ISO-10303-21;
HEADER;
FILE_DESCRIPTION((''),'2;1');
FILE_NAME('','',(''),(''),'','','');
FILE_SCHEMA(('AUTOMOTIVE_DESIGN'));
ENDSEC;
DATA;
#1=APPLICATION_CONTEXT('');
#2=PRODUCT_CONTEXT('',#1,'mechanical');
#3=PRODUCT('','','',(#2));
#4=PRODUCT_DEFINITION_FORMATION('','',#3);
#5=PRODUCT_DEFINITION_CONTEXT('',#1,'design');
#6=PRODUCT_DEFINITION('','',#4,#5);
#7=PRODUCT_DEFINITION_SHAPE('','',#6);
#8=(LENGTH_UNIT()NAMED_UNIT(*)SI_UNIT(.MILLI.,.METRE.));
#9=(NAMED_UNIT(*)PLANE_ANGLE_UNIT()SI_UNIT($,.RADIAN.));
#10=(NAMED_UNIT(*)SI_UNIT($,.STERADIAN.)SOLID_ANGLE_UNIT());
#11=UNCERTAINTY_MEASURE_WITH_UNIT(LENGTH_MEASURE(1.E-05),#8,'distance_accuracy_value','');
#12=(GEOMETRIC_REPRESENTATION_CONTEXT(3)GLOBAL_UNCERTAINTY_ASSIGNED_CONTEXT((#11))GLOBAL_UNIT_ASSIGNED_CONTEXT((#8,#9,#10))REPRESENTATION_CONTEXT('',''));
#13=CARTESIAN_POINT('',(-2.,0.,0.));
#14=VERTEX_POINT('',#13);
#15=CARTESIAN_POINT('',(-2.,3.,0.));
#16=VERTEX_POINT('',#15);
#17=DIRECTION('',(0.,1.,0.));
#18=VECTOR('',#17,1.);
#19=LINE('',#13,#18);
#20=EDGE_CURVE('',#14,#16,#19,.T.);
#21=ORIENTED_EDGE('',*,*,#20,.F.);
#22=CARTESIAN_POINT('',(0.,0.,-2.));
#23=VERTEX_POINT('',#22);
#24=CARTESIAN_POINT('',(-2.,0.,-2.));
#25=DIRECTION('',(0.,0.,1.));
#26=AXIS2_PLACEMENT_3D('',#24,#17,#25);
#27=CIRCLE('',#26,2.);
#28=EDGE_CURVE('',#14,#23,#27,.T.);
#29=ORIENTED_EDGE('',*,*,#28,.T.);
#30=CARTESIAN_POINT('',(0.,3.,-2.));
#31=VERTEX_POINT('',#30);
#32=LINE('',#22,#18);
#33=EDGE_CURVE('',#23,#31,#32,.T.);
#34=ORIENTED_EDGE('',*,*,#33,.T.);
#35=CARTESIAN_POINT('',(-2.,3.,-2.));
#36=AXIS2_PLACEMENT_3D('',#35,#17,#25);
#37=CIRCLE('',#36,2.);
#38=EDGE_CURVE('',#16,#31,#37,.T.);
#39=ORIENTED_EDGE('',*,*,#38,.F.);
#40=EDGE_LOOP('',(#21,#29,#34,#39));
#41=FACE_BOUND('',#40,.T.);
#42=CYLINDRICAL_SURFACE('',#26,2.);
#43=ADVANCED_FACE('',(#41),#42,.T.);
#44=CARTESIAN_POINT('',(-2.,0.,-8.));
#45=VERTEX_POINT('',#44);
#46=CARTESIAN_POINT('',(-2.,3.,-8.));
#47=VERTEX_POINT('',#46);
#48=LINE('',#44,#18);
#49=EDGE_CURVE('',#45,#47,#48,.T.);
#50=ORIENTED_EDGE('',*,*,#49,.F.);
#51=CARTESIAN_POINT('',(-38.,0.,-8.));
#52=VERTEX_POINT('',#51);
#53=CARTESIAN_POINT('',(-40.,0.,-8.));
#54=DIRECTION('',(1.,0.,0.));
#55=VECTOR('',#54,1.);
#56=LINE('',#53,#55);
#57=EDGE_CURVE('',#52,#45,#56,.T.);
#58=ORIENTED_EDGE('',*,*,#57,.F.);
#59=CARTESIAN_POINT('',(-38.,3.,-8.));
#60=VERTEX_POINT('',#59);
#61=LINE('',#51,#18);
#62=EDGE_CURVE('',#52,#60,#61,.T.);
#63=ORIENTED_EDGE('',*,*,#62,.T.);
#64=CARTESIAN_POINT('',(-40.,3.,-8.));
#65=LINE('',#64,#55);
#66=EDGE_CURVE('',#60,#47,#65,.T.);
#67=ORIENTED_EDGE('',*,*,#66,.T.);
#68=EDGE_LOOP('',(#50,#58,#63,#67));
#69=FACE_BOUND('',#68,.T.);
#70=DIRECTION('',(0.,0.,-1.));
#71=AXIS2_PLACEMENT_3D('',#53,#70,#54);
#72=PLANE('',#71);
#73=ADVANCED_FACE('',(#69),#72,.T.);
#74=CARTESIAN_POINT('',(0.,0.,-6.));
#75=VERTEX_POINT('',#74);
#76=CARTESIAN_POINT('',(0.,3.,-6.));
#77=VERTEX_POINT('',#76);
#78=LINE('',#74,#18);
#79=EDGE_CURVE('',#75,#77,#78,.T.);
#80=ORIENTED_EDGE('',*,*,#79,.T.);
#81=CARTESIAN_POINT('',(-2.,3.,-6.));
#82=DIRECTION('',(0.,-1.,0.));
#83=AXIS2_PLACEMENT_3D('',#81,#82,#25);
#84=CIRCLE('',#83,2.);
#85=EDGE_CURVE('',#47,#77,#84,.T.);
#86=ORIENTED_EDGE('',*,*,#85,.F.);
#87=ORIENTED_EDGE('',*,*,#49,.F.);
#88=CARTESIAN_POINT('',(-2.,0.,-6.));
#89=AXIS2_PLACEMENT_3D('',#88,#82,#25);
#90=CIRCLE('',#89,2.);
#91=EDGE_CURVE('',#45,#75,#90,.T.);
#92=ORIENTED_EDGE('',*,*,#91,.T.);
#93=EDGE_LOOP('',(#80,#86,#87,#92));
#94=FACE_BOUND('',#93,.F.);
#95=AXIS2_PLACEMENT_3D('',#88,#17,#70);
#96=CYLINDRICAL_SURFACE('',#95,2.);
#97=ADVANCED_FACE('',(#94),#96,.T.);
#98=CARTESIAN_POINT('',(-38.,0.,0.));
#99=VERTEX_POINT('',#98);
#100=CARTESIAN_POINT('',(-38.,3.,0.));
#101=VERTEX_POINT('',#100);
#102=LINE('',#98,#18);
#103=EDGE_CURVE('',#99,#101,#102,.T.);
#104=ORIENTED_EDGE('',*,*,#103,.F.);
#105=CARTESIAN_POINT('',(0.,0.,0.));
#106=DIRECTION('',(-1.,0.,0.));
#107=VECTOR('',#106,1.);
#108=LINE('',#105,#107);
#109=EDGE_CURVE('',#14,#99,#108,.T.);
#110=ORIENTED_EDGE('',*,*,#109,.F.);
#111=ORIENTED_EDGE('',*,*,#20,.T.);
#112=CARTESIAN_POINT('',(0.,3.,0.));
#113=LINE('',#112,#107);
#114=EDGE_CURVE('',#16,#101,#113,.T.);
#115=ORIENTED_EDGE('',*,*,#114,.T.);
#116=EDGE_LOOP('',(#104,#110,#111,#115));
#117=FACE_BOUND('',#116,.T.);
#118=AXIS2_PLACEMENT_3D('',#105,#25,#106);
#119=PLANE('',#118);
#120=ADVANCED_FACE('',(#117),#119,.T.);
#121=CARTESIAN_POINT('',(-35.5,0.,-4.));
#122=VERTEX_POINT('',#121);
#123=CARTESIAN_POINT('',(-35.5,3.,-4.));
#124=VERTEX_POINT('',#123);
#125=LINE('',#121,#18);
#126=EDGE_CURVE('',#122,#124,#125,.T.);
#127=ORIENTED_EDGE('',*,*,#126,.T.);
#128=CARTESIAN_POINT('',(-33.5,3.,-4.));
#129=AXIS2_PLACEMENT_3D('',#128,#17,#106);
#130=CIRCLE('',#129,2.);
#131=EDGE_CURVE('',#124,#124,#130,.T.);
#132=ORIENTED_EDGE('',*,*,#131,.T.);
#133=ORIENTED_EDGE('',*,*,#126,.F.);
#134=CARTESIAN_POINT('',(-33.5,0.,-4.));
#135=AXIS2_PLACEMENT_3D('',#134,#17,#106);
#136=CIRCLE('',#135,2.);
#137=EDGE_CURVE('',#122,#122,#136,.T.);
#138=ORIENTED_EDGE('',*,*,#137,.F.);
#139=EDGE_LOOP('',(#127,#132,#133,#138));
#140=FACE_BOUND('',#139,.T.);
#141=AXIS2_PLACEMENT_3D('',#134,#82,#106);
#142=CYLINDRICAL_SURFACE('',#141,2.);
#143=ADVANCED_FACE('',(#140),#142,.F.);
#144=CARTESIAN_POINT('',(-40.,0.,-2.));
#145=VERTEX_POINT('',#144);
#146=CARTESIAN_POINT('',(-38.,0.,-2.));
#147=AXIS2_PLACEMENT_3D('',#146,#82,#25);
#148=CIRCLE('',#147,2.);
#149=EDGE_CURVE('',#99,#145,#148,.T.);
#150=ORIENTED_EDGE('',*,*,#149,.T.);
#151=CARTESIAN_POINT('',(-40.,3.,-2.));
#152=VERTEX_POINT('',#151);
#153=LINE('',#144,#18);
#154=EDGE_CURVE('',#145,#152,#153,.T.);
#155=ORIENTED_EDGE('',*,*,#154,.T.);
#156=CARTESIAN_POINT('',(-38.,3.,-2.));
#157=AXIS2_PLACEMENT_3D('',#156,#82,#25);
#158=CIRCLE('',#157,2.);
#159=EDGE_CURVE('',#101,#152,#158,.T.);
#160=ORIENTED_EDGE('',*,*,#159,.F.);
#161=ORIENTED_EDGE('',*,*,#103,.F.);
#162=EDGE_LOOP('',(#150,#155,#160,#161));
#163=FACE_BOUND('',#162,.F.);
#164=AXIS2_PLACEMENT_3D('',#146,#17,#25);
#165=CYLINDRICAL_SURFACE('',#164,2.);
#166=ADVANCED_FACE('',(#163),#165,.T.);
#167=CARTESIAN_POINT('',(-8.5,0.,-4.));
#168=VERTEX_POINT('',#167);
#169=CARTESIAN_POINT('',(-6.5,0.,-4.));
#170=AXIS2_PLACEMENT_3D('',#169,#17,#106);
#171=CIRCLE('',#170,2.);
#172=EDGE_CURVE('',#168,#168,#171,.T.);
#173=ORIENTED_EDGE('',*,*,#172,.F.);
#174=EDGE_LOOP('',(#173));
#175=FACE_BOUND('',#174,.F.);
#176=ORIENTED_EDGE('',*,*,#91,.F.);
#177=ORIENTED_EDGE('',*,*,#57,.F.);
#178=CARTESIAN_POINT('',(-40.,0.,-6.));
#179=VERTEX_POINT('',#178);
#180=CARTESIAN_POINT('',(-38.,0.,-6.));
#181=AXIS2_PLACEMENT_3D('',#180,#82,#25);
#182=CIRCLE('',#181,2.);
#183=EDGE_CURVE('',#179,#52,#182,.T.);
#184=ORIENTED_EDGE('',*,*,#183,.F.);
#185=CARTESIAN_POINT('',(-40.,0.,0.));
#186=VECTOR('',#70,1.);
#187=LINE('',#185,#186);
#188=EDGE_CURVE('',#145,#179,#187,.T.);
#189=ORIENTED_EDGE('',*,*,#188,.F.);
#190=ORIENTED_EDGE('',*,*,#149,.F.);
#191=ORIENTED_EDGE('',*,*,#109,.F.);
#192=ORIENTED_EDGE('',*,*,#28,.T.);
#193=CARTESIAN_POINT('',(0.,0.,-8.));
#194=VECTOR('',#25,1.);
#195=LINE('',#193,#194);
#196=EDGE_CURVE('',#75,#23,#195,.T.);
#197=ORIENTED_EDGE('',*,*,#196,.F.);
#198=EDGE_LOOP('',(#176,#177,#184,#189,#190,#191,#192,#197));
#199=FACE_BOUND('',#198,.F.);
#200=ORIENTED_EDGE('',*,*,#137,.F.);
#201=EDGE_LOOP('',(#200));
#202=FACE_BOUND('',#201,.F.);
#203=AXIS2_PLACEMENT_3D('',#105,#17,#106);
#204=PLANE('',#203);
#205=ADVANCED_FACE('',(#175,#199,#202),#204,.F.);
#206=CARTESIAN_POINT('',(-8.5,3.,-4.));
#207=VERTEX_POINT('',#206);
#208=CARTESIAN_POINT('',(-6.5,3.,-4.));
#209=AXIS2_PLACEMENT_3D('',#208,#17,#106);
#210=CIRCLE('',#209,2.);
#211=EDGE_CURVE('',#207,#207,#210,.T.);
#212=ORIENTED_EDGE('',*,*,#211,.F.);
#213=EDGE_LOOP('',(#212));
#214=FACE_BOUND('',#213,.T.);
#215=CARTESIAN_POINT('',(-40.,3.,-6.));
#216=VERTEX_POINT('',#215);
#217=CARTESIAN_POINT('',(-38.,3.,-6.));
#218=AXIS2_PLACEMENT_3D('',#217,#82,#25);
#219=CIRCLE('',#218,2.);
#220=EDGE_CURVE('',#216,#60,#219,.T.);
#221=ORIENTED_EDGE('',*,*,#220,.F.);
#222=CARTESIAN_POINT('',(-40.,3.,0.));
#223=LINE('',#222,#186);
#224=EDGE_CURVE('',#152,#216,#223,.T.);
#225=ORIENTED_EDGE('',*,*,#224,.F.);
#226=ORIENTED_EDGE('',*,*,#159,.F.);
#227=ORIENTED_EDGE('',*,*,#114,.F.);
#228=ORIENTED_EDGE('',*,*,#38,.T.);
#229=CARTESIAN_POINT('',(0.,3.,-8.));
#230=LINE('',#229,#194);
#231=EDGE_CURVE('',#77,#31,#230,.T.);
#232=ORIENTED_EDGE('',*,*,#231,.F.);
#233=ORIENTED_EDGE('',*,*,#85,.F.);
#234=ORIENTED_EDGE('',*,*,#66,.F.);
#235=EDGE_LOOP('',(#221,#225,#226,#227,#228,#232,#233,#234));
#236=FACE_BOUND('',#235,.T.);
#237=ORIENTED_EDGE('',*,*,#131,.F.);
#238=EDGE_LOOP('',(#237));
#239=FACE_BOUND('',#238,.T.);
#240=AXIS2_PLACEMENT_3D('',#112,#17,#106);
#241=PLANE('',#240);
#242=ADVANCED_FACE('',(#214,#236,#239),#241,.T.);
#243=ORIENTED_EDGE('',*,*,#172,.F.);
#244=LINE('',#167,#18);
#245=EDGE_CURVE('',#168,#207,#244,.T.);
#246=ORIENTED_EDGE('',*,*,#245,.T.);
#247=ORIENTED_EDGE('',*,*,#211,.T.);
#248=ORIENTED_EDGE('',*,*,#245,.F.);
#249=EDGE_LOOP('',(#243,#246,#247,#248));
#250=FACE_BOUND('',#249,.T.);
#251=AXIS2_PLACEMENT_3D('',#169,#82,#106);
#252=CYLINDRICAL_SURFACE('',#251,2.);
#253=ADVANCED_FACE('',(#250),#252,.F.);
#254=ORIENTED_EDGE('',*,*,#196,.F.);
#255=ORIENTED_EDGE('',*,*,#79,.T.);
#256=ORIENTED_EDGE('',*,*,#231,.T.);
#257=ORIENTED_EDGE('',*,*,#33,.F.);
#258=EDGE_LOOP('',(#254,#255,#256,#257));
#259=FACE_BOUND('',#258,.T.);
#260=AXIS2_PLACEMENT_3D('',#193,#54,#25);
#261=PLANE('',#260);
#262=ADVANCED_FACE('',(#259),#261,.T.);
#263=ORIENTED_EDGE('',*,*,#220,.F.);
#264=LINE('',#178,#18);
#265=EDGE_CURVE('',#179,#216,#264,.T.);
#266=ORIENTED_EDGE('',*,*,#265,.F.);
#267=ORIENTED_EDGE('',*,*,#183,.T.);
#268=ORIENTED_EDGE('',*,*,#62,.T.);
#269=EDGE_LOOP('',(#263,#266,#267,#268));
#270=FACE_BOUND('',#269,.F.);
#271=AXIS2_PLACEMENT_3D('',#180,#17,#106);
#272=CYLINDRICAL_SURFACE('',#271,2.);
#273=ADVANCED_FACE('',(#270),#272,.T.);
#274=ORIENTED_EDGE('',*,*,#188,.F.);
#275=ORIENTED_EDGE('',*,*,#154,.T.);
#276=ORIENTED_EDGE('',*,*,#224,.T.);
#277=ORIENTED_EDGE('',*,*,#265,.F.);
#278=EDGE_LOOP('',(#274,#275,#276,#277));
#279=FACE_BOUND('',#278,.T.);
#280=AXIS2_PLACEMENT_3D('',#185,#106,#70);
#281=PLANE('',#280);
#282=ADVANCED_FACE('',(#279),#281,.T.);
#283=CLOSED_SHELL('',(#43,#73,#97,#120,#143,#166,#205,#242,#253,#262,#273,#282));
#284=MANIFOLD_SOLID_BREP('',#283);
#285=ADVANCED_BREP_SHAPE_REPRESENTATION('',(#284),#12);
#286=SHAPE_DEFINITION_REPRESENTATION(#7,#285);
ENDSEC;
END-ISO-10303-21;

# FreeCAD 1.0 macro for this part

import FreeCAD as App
import Part
import Sketcher
Q = App.Units.Quantity


def edges_at(feature, points):
    """Names of the edges that pass closest to the given points."""
    edges = feature.Shape.Edges
    near = lambda p: min(range(len(edges)), key=lambda i: edges[i].distToShape(Part.Vertex(*p))[0])
    return sorted({f"Edge{near(p) + 1}" for p in points})


def add_polygon(sketch, points):
    """Adds a closed chain of lines whose ends are joined by coincident constraints."""
    first, n = sketch.GeometryCount, len(points)
    for a, b in zip(points, points[1:] + points[:1]):
        sketch.addGeometry(Part.LineSegment(App.Vector(*a, 0), App.Vector(*b, 0)), False)
    for i in range(n):
        sketch.addConstraint(Sketcher.Constraint("Coincident", first + i, 2, first + (i + 1) % n, 1))

doc = App.newDocument("Part")
body = doc.addObject("PartDesign::Body", "Body")

# Sketch on XZ plane
sketch1 = body.newObject("Sketcher::SketchObject", "Sketch")
sketch1.AttachmentSupport = (doc.getObject("XZ_Plane"), [""])
sketch1.MapMode = "FlatFace"
add_polygon(sketch1, [(-40, 0), (0, 0), (0, -8), (-40, -8)])  # lines 0-3
sketch1.addGeometry(Part.Circle(App.Vector(-6.5, -4, 0), App.Vector(0, 0, 1), 2), False)  # 4
sketch1.addGeometry(Part.Circle(App.Vector(-33.5, -4, 0), App.Vector(0, 0, 1), 2), False)  # 5
sketch1.addConstraint([
    Sketcher.Constraint("Horizontal", 0),
    Sketcher.Constraint("Vertical", 1),
    Sketcher.Constraint("Horizontal", 2),
    Sketcher.Constraint("Vertical", 3),
    Sketcher.Constraint("Coincident", 0, 2, -1, 1),
    Sketcher.Constraint("Equal", 4, 5),
    Sketcher.Constraint("Horizontal", 4, 3, 5, 3),
    Sketcher.Constraint("Diameter", 4, Q("4 mm")),
    Sketcher.Constraint("DistanceX", 0, 1, 0, 2, Q("40 mm")),
    Sketcher.Constraint("DistanceY", 1, 2, 1, 1, Q("8 mm")),
    Sketcher.Constraint("DistanceY", 4, 3, -1, 1, Q("4 mm")),
    Sketcher.Constraint("DistanceX", 5, 3, 4, 3, Q("27 mm")),
    Sketcher.Constraint("DistanceX", 4, 3, -1, 1, Q("6.5 mm")),
])
pad1 = body.newObject("PartDesign::Pad", "Pad")
pad1.Profile = sketch1
pad1.Length = 3
pad1.Reversed = True
doc.recompute()

fillet = body.newObject("PartDesign::Fillet", "Fillet")
fillet.Base = (pad1, edges_at(pad1, [
    (0, 1.5, 0),
    (0, 1.5, -8),
    (-40, 1.5, -8),
    (-40, 1.5, 0),
]))
fillet.Radius = 2

doc.recompute()
